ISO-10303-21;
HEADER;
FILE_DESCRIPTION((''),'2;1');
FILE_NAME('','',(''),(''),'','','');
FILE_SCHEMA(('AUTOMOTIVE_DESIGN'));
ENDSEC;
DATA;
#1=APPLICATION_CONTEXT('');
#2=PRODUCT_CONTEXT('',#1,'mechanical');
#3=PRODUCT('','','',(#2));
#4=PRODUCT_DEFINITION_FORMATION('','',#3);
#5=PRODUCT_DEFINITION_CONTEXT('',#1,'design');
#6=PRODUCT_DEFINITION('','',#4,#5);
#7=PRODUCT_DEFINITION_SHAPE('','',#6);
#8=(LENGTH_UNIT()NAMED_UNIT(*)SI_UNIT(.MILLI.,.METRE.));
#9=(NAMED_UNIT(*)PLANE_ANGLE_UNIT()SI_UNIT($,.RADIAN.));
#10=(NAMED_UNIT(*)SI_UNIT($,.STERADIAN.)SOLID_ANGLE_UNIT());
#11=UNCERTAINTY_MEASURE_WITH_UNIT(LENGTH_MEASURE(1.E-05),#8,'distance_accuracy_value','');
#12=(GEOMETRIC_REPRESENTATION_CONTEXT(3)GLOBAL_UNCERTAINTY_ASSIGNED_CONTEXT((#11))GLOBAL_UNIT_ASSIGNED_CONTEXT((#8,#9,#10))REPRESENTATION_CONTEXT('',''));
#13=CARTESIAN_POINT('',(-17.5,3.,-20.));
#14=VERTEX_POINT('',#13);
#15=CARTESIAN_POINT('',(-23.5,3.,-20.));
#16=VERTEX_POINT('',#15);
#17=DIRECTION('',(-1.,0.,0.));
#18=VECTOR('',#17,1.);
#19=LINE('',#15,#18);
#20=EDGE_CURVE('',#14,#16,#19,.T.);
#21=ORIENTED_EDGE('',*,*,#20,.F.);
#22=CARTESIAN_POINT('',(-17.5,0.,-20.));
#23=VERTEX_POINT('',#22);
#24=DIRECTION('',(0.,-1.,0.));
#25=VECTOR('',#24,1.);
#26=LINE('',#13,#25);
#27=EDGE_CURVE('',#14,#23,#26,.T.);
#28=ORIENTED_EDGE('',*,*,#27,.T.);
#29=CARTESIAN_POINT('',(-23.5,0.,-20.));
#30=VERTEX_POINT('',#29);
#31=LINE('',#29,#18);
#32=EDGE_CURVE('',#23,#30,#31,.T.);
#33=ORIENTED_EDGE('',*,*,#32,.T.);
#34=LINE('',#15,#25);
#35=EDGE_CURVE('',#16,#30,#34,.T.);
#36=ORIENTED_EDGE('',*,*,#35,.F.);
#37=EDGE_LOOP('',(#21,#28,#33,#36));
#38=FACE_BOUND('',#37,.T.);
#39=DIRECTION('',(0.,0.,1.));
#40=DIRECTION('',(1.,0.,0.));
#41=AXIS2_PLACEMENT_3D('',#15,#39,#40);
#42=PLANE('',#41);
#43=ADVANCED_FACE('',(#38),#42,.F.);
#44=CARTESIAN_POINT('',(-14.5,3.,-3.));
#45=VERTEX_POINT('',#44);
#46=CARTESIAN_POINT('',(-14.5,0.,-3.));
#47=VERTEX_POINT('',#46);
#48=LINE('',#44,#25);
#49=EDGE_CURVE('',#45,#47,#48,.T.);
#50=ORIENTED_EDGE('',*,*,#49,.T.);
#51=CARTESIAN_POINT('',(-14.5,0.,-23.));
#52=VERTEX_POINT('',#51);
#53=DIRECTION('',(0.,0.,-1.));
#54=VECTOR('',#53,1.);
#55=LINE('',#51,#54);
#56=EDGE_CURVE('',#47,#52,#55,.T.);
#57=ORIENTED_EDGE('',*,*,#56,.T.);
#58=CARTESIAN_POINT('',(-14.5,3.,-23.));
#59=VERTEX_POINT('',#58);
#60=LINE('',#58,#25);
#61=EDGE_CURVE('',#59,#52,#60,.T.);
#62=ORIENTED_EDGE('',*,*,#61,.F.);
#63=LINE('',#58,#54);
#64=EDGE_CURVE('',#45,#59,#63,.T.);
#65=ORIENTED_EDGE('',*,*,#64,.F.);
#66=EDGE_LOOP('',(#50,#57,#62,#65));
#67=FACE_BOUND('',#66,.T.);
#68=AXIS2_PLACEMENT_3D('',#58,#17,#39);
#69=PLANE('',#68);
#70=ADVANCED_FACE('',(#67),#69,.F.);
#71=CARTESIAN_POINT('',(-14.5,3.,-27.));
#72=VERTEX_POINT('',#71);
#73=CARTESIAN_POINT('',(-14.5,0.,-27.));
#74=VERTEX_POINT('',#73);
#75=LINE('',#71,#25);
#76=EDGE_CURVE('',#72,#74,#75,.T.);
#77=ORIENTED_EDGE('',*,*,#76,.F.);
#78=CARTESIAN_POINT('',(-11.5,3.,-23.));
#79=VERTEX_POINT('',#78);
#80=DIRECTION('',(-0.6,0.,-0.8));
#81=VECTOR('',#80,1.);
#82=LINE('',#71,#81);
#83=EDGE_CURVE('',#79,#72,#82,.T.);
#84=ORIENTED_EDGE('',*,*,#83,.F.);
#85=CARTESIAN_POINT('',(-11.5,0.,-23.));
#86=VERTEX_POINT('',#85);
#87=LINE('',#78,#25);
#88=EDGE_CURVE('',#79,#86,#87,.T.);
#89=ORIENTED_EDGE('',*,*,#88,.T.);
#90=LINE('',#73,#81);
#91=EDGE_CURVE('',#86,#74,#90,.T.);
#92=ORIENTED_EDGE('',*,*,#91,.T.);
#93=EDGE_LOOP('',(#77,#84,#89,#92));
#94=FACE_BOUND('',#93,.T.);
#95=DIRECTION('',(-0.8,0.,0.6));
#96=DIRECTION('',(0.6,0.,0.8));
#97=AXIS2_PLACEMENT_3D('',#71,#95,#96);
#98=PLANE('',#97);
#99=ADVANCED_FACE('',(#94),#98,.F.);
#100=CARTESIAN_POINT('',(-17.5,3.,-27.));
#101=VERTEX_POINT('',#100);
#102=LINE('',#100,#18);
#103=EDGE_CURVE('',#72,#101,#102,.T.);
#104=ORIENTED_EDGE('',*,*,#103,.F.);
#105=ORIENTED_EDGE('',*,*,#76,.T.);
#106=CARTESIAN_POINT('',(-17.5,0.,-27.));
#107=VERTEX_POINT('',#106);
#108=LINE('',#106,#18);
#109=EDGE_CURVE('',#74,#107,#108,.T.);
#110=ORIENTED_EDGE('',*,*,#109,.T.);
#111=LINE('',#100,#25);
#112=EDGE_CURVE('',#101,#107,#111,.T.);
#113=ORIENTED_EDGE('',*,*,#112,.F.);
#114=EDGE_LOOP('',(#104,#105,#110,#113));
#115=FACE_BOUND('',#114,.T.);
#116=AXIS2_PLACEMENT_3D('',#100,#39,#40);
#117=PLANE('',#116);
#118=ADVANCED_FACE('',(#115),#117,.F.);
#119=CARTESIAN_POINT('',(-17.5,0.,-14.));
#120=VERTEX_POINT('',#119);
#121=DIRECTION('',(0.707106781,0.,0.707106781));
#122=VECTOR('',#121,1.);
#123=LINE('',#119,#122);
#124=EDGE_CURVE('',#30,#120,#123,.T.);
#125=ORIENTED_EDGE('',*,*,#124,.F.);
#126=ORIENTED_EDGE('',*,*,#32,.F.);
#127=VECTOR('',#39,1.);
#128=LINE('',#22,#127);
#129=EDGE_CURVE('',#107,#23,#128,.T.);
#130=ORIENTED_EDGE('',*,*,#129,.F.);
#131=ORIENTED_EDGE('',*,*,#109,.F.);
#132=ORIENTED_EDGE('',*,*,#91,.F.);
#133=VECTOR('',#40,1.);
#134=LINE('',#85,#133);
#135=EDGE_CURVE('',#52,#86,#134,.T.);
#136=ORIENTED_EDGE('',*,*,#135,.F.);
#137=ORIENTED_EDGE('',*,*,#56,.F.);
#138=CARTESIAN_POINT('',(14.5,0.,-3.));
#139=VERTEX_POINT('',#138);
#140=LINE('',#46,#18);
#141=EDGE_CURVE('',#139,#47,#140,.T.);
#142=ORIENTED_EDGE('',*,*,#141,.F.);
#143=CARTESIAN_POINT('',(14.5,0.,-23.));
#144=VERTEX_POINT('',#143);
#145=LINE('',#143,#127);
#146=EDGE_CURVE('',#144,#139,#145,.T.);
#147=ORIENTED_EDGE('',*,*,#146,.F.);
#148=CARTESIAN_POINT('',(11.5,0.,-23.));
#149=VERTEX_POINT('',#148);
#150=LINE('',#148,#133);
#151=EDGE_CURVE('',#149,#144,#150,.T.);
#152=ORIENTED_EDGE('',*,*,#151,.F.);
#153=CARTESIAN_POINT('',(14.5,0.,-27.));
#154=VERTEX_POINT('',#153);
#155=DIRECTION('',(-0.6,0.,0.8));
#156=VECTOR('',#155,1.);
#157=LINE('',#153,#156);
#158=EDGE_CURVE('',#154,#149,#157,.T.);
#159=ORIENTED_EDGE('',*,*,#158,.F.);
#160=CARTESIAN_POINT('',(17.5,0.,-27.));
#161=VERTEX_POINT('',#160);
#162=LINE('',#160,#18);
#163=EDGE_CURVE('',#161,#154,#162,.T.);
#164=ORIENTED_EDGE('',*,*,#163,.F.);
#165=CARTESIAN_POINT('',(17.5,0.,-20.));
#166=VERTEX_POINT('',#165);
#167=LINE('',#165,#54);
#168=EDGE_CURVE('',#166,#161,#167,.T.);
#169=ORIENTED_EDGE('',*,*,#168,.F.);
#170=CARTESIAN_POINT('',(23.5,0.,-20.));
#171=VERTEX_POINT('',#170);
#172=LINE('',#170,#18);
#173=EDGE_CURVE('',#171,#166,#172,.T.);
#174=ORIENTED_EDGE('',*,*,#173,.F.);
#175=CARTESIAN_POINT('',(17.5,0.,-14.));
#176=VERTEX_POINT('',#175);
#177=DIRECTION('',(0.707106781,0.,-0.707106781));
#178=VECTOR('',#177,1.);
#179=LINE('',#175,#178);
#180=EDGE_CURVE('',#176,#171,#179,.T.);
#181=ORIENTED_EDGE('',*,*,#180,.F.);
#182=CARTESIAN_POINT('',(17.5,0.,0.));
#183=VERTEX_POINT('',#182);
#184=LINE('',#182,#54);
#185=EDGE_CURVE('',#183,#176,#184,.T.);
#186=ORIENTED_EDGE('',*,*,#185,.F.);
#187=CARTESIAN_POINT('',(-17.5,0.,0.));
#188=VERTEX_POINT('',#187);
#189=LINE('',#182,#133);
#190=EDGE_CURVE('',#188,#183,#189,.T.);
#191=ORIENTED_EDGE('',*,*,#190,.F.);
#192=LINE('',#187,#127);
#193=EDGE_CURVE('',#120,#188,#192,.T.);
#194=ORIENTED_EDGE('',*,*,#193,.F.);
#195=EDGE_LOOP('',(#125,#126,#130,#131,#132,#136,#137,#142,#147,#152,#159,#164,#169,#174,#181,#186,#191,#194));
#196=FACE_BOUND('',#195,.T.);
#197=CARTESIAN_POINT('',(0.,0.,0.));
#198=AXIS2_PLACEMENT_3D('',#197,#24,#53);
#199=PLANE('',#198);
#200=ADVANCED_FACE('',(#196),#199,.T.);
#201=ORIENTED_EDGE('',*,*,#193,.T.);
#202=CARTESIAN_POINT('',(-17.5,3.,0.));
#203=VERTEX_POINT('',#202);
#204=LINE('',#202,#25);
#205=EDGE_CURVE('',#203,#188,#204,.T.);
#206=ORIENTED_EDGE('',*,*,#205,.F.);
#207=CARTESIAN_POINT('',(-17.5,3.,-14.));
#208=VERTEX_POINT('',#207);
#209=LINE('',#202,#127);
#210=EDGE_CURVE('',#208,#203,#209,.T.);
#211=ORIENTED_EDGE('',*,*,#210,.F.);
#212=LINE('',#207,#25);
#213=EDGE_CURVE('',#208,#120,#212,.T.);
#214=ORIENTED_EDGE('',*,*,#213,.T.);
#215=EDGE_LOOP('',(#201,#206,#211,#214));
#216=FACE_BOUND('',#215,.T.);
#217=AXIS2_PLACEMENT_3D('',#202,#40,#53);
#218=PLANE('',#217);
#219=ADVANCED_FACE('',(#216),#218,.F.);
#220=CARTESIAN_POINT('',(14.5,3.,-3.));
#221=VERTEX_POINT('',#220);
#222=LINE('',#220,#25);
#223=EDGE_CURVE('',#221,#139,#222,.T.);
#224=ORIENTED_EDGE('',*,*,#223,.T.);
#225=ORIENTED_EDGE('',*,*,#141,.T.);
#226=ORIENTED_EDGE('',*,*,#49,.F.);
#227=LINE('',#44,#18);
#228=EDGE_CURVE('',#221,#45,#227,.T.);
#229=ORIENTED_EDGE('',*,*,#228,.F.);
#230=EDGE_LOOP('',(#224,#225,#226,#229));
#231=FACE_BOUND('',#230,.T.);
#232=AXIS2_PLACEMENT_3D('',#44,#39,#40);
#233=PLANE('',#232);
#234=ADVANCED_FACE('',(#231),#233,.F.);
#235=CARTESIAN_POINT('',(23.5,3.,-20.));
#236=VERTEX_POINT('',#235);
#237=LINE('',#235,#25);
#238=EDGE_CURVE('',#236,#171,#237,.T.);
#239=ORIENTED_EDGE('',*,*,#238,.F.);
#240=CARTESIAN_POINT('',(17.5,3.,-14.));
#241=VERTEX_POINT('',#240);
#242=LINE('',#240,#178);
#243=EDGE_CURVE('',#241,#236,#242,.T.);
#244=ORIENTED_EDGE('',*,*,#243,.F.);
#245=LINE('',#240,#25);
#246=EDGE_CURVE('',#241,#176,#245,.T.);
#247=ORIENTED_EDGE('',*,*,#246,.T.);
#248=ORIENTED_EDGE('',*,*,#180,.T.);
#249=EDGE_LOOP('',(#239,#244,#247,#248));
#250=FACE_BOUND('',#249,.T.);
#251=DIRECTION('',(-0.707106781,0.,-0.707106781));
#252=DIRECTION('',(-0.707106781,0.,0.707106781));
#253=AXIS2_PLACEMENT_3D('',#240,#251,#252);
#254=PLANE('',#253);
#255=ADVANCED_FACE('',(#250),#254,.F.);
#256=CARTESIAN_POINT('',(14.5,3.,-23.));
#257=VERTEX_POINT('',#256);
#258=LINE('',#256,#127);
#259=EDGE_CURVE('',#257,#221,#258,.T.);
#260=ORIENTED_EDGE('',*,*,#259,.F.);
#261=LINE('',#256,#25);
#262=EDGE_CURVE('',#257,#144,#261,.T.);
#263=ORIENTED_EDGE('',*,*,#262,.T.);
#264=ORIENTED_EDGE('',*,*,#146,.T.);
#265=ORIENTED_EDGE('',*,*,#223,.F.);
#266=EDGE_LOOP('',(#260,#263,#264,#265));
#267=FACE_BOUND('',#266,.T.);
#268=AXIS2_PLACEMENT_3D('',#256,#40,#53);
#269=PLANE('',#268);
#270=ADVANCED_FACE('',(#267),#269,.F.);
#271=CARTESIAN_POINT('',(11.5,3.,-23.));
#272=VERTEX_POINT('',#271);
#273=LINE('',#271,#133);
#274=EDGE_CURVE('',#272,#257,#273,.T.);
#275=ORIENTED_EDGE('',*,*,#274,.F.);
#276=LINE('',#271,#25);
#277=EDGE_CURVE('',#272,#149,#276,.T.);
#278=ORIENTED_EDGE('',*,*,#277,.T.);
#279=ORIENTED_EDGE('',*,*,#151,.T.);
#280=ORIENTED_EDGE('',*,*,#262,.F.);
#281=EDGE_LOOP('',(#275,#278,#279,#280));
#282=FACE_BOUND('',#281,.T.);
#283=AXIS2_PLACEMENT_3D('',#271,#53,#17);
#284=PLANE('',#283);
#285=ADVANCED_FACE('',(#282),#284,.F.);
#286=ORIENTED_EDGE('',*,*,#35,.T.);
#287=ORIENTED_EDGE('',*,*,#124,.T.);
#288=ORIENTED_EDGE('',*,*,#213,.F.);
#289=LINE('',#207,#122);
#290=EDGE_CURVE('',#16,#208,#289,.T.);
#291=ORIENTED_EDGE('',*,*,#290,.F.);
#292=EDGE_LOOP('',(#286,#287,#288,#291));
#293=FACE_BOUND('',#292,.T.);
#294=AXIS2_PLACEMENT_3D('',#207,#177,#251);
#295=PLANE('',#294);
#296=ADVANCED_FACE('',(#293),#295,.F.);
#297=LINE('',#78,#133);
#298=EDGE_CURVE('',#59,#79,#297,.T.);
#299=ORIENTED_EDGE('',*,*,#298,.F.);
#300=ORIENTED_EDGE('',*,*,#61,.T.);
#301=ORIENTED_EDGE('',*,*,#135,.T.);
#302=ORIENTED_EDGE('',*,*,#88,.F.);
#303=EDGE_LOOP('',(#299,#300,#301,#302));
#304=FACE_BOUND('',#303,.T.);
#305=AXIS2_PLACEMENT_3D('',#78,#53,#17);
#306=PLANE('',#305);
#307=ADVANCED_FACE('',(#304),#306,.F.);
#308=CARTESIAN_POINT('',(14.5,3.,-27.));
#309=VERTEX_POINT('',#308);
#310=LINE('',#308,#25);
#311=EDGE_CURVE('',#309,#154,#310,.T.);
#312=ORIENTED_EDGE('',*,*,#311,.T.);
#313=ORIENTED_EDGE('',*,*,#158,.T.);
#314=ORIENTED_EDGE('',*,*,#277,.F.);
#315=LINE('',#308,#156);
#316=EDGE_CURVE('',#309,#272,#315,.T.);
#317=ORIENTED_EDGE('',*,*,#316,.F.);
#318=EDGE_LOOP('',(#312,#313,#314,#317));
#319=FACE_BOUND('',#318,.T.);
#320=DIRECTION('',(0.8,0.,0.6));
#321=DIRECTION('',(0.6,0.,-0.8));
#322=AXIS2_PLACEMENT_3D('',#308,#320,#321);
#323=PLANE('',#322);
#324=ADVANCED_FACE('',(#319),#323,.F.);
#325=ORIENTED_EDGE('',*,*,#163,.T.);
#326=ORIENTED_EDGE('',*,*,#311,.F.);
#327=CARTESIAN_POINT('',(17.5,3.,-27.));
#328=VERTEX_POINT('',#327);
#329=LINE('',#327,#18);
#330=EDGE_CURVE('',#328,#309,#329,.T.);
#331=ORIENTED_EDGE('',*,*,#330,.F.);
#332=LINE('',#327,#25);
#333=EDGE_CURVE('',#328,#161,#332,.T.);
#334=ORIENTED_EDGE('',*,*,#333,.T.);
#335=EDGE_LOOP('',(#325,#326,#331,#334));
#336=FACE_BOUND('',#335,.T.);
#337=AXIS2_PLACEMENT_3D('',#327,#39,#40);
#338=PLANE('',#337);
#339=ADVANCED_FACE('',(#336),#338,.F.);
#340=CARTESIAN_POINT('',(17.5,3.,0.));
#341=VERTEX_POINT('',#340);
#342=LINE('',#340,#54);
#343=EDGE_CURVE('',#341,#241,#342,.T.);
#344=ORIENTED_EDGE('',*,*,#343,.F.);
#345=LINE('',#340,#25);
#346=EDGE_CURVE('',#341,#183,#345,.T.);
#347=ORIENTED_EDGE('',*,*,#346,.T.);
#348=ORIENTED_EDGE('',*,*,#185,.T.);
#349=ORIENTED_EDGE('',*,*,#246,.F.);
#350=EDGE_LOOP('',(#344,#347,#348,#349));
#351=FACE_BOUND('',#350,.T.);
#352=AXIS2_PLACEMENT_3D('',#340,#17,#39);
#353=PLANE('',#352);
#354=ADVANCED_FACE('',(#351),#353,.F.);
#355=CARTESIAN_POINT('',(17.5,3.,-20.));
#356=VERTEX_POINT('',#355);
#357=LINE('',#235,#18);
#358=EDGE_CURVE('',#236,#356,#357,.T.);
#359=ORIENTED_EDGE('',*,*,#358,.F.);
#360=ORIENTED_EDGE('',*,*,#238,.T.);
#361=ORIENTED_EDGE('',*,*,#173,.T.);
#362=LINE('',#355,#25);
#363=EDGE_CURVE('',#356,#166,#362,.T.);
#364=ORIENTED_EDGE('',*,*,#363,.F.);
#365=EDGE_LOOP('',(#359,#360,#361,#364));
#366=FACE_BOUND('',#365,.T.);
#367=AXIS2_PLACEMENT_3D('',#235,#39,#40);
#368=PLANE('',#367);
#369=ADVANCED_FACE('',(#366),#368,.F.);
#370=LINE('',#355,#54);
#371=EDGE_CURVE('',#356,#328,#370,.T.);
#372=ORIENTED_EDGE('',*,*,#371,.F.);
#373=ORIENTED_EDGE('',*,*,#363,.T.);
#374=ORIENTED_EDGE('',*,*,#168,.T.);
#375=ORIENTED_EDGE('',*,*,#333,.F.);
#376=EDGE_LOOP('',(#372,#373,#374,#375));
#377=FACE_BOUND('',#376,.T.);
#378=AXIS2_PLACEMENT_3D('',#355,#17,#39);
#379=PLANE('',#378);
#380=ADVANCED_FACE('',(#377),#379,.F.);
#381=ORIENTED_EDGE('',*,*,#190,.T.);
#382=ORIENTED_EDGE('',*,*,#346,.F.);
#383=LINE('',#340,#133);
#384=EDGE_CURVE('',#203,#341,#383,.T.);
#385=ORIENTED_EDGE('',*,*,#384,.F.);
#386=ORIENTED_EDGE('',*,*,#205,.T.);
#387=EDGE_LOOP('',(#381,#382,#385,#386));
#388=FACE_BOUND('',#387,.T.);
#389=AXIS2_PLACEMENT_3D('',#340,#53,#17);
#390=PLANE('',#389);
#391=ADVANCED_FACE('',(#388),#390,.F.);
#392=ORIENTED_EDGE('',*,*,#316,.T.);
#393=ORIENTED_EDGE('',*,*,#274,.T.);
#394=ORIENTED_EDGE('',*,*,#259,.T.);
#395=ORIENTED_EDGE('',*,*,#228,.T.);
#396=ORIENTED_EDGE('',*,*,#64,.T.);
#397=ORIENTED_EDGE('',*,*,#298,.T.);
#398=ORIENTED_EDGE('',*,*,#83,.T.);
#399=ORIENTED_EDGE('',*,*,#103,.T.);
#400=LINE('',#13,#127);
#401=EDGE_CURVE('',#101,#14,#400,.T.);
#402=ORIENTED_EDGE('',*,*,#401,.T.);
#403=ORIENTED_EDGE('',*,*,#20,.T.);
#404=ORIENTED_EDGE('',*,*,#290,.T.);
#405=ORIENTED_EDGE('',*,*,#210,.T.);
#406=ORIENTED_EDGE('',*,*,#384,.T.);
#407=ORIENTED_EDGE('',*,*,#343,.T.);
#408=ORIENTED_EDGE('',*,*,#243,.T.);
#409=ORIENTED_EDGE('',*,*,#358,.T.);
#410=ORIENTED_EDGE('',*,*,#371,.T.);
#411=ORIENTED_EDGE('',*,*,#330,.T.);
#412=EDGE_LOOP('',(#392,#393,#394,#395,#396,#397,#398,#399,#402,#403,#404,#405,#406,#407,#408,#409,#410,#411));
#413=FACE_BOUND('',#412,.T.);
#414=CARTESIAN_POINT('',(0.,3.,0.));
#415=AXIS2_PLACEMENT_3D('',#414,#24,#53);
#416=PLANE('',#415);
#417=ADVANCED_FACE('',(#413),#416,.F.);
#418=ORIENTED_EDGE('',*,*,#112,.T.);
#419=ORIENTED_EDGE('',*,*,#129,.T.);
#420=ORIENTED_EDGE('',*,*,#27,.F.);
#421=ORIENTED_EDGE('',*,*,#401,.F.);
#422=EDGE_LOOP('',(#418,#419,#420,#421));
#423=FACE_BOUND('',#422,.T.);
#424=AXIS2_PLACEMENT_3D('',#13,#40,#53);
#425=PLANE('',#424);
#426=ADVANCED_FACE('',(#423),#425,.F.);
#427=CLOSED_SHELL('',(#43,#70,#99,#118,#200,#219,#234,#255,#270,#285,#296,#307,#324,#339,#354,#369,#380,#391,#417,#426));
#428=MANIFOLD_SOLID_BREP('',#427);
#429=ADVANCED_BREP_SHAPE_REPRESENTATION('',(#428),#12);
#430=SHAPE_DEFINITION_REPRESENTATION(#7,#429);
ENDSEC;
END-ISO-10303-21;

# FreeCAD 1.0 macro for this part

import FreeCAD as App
import Part
import Sketcher

V = App.Vector
Q = App.Units.Quantity


def add_polygon(sketch, points):
    """Adds a closed chain of lines whose ends are joined by coincident constraints."""
    first, n = sketch.GeometryCount, len(points)
    for a, b in zip(points, points[1:] + points[:1]):
        sketch.addGeometry(Part.LineSegment(App.Vector(*a, 0), App.Vector(*b, 0)), False)
    for i in range(n):
        sketch.addConstraint(Sketcher.Constraint("Coincident", first + i, 2, first + (i + 1) % n, 1))

doc = App.newDocument("Part")
body = doc.addObject("PartDesign::Body", "Body")

sketch1 = body.newObject("Sketcher::SketchObject", "Sketch")
sketch1.AttachmentSupport = (doc.getObject("XZ_Plane"), [""])
sketch1.MapMode = "FlatFace"
add_polygon(sketch1, [(-17.5, 0), (17.5, 0), (17.5, -14), (23.5, -20), (17.5, -20), (17.5, -27), (14.5, -27), (11.5, -23), (14.5, -23), (14.5, -3), (-14.5, -3), (-14.5, -23), (-11.5, -23), (-14.5, -27), (-17.5, -27), (-17.5, -20), (-23.5, -20), (-17.5, -14)])
sketch1.addConstraint(Sketcher.Constraint("Horizontal", 0))
sketch1.addConstraint(Sketcher.Constraint("Vertical", 1))
sketch1.addConstraint(Sketcher.Constraint("Horizontal", 3))
sketch1.addConstraint(Sketcher.Constraint("Vertical", 4))
sketch1.addConstraint(Sketcher.Constraint("Horizontal", 5))
sketch1.addConstraint(Sketcher.Constraint("Horizontal", 7))
sketch1.addConstraint(Sketcher.Constraint("Vertical", 8))
sketch1.addConstraint(Sketcher.Constraint("Horizontal", 9))
sketch1.addConstraint(Sketcher.Constraint("Vertical", 10))
sketch1.addConstraint(Sketcher.Constraint("Horizontal", 11))
sketch1.addConstraint(Sketcher.Constraint("Horizontal", 13))
sketch1.addConstraint(Sketcher.Constraint("Vertical", 14))
sketch1.addConstraint(Sketcher.Constraint("Horizontal", 15))
sketch1.addConstraint(Sketcher.Constraint("Vertical", 17))
sketch1.addConstraint(Sketcher.Constraint("Symmetric", 0, 2, 17, 2, -1, 1))
sketch1.addConstraint(Sketcher.Constraint("Symmetric", 7, 2, 10, 2, -2))
sketch1.addConstraint(Sketcher.Constraint("Symmetric", 5, 2, 12, 2, -2))
sketch1.addConstraint(Sketcher.Constraint("Symmetric", 3, 2, 14, 2, -2))
sketch1.addConstraint(Sketcher.Constraint("Perpendicular", 2, 16))
sketch1.addConstraint(Sketcher.Constraint("Horizontal", 1, 2, 16, 2))
sketch1.addConstraint(Sketcher.Constraint("Vertical", 1, 2, 3, 2))
sketch1.addConstraint(Sketcher.Constraint("Vertical", 5, 2, 7, 2))
sketch1.addConstraint(Sketcher.Constraint("Equal", 5, 7))
sketch1.addConstraint(Sketcher.Constraint("Equal", 7, 11))
sketch1.addConstraint(Sketcher.Constraint("Equal", 3, 15))
sketch1.addConstraint(Sketcher.Constraint("DistanceX", 0, 1, 0, 2, Q("35 mm")))
sketch1.addConstraint(Sketcher.Constraint("DistanceX", 3, 2, 3, 1, Q("6 mm")))
sketch1.addConstraint(Sketcher.Constraint("DistanceX", 5, 2, 5, 1, Q("3 mm")))
sketch1.addConstraint(Sketcher.Constraint("DistanceY", 1, 2, 1, 1, Q("14 mm")))
sketch1.addConstraint(Sketcher.Constraint("DistanceY", 4, 2, 4, 1, Q("7 mm")))
sketch1.addConstraint(Sketcher.Constraint("DistanceY", 8, 1, 8, 2, Q("20 mm")))
sketch1.addConstraint(Sketcher.Constraint("Distance", 6, Q("5 mm")))
pad1 = body.newObject("PartDesign::Pad", "Pad")
pad1.Profile = sketch1
pad1.Length = 3
pad1.Reversed = True

doc.recompute()
